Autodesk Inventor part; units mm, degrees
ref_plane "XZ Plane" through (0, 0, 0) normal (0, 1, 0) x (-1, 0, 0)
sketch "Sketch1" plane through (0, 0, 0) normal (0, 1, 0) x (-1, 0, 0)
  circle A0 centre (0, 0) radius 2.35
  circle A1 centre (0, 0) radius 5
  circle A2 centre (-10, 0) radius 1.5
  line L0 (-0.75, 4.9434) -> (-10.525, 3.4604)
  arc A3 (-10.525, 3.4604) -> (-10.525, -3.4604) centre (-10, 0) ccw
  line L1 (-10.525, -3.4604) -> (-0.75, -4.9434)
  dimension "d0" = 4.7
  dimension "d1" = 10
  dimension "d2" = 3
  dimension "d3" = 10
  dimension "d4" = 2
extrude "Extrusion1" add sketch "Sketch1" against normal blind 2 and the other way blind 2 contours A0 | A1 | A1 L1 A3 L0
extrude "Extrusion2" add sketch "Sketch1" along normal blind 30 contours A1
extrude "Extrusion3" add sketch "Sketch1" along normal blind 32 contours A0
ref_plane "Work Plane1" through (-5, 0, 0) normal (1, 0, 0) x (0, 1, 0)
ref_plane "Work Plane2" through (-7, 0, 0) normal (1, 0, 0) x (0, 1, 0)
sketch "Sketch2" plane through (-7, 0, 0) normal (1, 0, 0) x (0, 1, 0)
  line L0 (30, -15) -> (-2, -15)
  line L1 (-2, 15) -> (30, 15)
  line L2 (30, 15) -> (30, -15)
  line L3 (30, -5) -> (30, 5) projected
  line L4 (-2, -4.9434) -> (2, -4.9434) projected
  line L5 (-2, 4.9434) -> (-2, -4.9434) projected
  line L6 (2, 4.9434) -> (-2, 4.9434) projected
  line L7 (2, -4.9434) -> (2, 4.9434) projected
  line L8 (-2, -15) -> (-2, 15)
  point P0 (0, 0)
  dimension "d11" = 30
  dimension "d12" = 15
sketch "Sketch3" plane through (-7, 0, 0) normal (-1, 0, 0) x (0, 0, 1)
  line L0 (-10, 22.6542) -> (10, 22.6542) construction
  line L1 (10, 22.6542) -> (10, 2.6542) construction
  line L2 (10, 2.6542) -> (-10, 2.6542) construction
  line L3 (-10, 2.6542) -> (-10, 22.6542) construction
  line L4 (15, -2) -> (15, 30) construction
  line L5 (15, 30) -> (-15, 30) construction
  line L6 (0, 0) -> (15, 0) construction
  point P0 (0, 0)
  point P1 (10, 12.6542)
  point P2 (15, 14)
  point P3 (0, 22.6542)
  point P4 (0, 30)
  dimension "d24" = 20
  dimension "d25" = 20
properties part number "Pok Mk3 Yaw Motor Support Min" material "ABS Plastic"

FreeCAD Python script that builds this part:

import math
import FreeCAD as App
import Part
import Sketcher

V = App.Vector
Q = App.Units.Quantity

doc = App.newDocument("Part")
params = doc.addObject("Spreadsheet::Sheet", "Params")
for row, (alias, value) in enumerate([
    ("sketch1_diameter", "3 mm"),
    ("sketch1_radius", "5 mm"),
    ("sketch1_radius2", "3.5 mm"),
    ("pad1_length", "2 mm"),
    ("pad1_length2", "2 mm"),
    ("sketch2_diameter", "10 mm"),
    ("sketch2_diameter2", "4.7 mm"),
    ("pad2_length", "30 mm"),
    ("sketch3_diameter", "4.7 mm"),
    ("pad3_length", "32 mm"),
], start=1):
    params.set(f"A{row}", alias)
    params.set(f"B{row}", "=" + value)
    params.setAlias(f"B{row}", alias)

body = doc.addObject("PartDesign::Body", "Body")

# Sketch on XZ plane
sketch1 = body.newObject("Sketcher::SketchObject", "Sketch")
sketch1.AttachmentSupport = (doc.getObject("XZ_Plane"), [""])
sketch1.MapMode = "FlatFace"
sketch1.addGeometry(Part.ArcOfCircle(Part.Circle(V(0, 0, 0), V(0, 0, 1), 5), math.radians(81), math.radians(279)), False)
sketch1.addGeometry(Part.LineSegment(V(0.8, 4.9, 0), V(10.5, 3.5, 0)), False)
sketch1.addGeometry(Part.ArcOfCircle(Part.Circle(V(10, 0, 0), V(0, 0, 1), 3.5), math.radians(-81), math.radians(81)), False)
sketch1.addGeometry(Part.LineSegment(V(10.5, -3.5, 0), V(0.8, -4.9, 0)), False)
sketch1.addGeometry(Part.Circle(V(10, 0, 0), V(0, 0, 1), 1.5), False)
sketch1.addConstraint(Sketcher.Constraint("Tangent", 0, 1, 1, 1))
sketch1.addConstraint(Sketcher.Constraint("Tangent", 1, 2, 2, 2))
sketch1.addConstraint(Sketcher.Constraint("Tangent", 2, 1, 3, 1))
sketch1.addConstraint(Sketcher.Constraint("Tangent", 3, 2, 0, 2))
sketch1.addConstraint(Sketcher.Constraint("Coincident", 0, 3, -1, 1))
sketch1.addConstraint(Sketcher.Constraint("Coincident", 4, 3, 2, 3))
sketch1.addConstraint(Sketcher.Constraint("PointOnObject", 2, 3, -1))
sketch1.addConstraint(Sketcher.Constraint("Diameter", 4, Q("3 mm")))
sketch1.addConstraint(Sketcher.Constraint("Radius", 0, Q("5 mm")))
sketch1.addConstraint(Sketcher.Constraint("DistanceX", -1, 1, 2, 3, Q("10 mm")))
sketch1.addConstraint(Sketcher.Constraint("Radius", 2, Q("3.5 mm")))
sketch1.setExpression("Constraints[7]", "Params.sketch1_diameter")
sketch1.setExpression("Constraints[8]", "Params.sketch1_radius")
sketch1.setExpression("Constraints[10]", "Params.sketch1_radius2")
pad1 = body.newObject("PartDesign::Pad", "Pad")
pad1.Profile = sketch1
pad1.Type = "TwoLengths"
pad1.setExpression("Length", "Params.pad1_length")
pad1.setExpression("Length2", "Params.pad1_length2")

# Sketch on XZ plane
sketch2 = body.newObject("Sketcher::SketchObject", "Sketch001")
sketch2.AttachmentSupport = (doc.getObject("XZ_Plane"), [""])
sketch2.MapMode = "FlatFace"
sketch2.addGeometry(Part.Circle(V(0, 0, 0), V(0, 0, 1), 5), False)
sketch2.addGeometry(Part.Circle(V(0, 0, 0), V(0, 0, 1), 2.4), False)
sketch2.addConstraint(Sketcher.Constraint("Coincident", 0, 3, -1, 1))
sketch2.addConstraint(Sketcher.Constraint("Coincident", 1, 3, -1, 1))
sketch2.addConstraint(Sketcher.Constraint("Diameter", 0, Q("10 mm")))
sketch2.addConstraint(Sketcher.Constraint("Diameter", 1, Q("4.7 mm")))
sketch2.setExpression("Constraints[2]", "Params.sketch2_diameter")
sketch2.setExpression("Constraints[3]", "Params.sketch2_diameter2")
pad2 = body.newObject("PartDesign::Pad", "Pad001")
pad2.Profile = sketch2
pad2.setExpression("Length", "Params.pad2_length")
pad2.Reversed = True

# Sketch on XZ plane
sketch3 = body.newObject("Sketcher::SketchObject", "Sketch002")
sketch3.AttachmentSupport = (doc.getObject("XZ_Plane"), [""])
sketch3.MapMode = "FlatFace"
sketch3.addGeometry(Part.Circle(V(0, 0, 0), V(0, 0, 1), 2.4), False)
sketch3.addConstraint(Sketcher.Constraint("Coincident", 0, 3, -1, 1))
sketch3.addConstraint(Sketcher.Constraint("Diameter", 0, Q("4.7 mm")))
sketch3.setExpression("Constraints[1]", "Params.sketch3_diameter")
pad3 = body.newObject("PartDesign::Pad", "Pad002")
pad3.Profile = sketch3
pad3.setExpression("Length", "Params.pad3_length")
pad3.Reversed = True

doc.recompute()
